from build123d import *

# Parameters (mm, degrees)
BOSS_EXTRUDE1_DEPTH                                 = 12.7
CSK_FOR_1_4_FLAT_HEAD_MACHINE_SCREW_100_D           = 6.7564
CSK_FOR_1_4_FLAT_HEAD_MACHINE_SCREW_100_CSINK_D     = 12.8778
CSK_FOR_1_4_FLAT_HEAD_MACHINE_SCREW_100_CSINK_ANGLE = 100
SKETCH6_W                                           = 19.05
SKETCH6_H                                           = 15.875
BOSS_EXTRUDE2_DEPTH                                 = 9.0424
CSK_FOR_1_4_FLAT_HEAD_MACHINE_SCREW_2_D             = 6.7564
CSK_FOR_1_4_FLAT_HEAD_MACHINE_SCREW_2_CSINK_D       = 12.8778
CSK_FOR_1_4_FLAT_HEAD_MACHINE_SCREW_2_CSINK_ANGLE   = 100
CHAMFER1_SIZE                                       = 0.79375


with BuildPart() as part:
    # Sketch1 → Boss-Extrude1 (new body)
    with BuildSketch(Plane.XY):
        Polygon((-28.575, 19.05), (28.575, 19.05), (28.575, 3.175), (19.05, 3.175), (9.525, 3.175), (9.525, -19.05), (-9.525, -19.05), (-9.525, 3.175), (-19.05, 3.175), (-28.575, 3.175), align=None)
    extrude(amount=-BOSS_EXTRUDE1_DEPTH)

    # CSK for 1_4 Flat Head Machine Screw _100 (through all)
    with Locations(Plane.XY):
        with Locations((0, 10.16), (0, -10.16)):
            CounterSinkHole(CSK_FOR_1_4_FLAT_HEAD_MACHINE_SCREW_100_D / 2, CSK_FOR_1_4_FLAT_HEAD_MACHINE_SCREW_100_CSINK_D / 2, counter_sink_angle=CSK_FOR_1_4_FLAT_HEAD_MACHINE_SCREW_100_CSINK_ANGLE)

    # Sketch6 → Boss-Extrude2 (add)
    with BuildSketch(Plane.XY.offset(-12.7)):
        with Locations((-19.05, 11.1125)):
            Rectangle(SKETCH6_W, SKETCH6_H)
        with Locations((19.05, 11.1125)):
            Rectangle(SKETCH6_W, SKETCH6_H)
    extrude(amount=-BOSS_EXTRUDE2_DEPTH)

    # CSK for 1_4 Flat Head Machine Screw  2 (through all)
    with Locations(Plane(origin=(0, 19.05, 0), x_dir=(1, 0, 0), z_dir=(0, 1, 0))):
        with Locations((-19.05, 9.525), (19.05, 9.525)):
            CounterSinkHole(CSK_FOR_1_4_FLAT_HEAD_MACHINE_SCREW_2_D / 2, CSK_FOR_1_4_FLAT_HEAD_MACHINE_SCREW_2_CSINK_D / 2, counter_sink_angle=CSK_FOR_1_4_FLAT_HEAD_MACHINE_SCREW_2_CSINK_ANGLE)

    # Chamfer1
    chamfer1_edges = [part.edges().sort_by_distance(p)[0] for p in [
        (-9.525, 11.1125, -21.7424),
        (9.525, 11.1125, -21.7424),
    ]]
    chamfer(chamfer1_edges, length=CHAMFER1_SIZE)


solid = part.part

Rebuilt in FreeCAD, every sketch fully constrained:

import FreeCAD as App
import Part
import Sketcher

V = App.Vector
Q = App.Units.Quantity


def edges_at(feature, points):
    """Names of the edges that pass closest to the given points."""
    edges = feature.Shape.Edges
    near = lambda p: min(range(len(edges)), key=lambda i: edges[i].distToShape(Part.Vertex(*p))[0])
    return sorted({f"Edge{near(p) + 1}" for p in points})

doc = App.newDocument("Part")
params = doc.addObject("Spreadsheet::Sheet", "Params")
for row, (alias, value) in enumerate([
    ("sketch1_width", "2.25 in"),
    ("sketch1_height", "0.625 in"),
    ("pad1_length", "0.5 in"),
    ("sketch2_diameter", "0.266 in"),
    ("hole_diameter", "0.266 in"),
    ("hole_csink_diameter", "0.507 in"),
    ("sketch3_width", "0.75 in"),
    ("sketch3_height", "0.625 in"),
    ("pad2_length", "0.356 in"),
    ("sketch4_diameter", "0.266 in"),
    ("hole2_diameter", "0.266 in"),
    ("hole2_csink_diameter", "0.507 in"),
    ("chamfer_size", "0.03125 in"),
], start=1):
    params.set(f"A{row}", alias)
    params.set(f"B{row}", "=" + value)
    params.setAlias(f"B{row}", alias)

body = doc.addObject("PartDesign::Body", "Body")

sketch1 = body.newObject("Sketcher::SketchObject", "Sketch")
sketch1.AttachmentSupport = (doc.getObject("XY_Plane"), [""])
sketch1.MapMode = "FlatFace"
sketch1.addGeometry([
    Part.LineSegment(V(29, 19, 0), V(-29, 19, 0)),
    Part.LineSegment(V(-29, 19, 0), V(-29, 3, 0)),
    Part.LineSegment(V(-29, 3, 0), V(-10, 3, 0)),
    Part.LineSegment(V(-10, 3, 0), V(-10, -19, 0)),
    Part.LineSegment(V(-10, -19, 0), V(10, -19, 0)),
    Part.LineSegment(V(10, -19, 0), V(10, 3, 0)),
    Part.LineSegment(V(10, 3, 0), V(29, 3, 0)),
    Part.LineSegment(V(29, 3, 0), V(29, 19, 0)),
], False)
sketch1.addConstraint([
    Sketcher.Constraint("Coincident", 0, 2, 1, 1),
    Sketcher.Constraint("Coincident", 1, 2, 2, 1),
    Sketcher.Constraint("Coincident", 2, 2, 3, 1),
    Sketcher.Constraint("Coincident", 3, 2, 4, 1),
    Sketcher.Constraint("Coincident", 4, 2, 5, 1),
    Sketcher.Constraint("Coincident", 5, 2, 6, 1),
    Sketcher.Constraint("Coincident", 6, 2, 7, 1),
    Sketcher.Constraint("Coincident", 7, 2, 0, 1),
    Sketcher.Constraint("Horizontal", 0),
    Sketcher.Constraint("Vertical", 1),
    Sketcher.Constraint("Horizontal", 2),
    Sketcher.Constraint("Vertical", 3),
    Sketcher.Constraint("Horizontal", 4),
    Sketcher.Constraint("Vertical", 5),
    Sketcher.Constraint("Horizontal", 6),
    Sketcher.Constraint("Vertical", 7),
    Sketcher.Constraint("Symmetric", 2, 2, 5, 2, -2),
    Sketcher.Constraint("Equal", 2, 4),
    Sketcher.Constraint("Equal", 4, 6),
    Sketcher.Constraint("DistanceX", 0, 2, 0, 1, Q("2.25 in")),
    Sketcher.Constraint("DistanceY", 3, 2, 0, 2, Q("1.5 in")),
    Sketcher.Constraint("DistanceY", 1, 2, 1, 1, Q("0.625 in")),
    Sketcher.Constraint("DistanceY", -1, 1, 0, 2, Q("0.75 in")),
])
sketch1.setExpression("Constraints[19]", "Params.sketch1_width")
sketch1.setExpression("Constraints[21]", "Params.sketch1_height")
pad1 = body.newObject("PartDesign::Pad", "Pad")
pad1.Profile = sketch1
pad1.setExpression("Length", "Params.pad1_length")
pad1.Reversed = True

sketch2 = body.newObject("Sketcher::SketchObject", "Sketch001")
sketch2.AttachmentSupport = (doc.getObject("XY_Plane"), [""])
sketch2.MapMode = "FlatFace"
sketch2.addGeometry([
    Part.Circle(V(0, 10.2, 0), V(0, 0, 1), 3.4),
    Part.Circle(V(0, -10.2, 0), V(0, 0, 1), 3.4),
], False)
sketch2.addConstraint([
    Sketcher.Constraint("Equal", 0, 1),
    Sketcher.Constraint("Symmetric", 0, 3, 1, 3, -1, 1),
    Sketcher.Constraint("PointOnObject", 0, 3, -2),
    Sketcher.Constraint("Diameter", 0, Q("0.266 in")),
    Sketcher.Constraint("DistanceY", -1, 1, 0, 3, Q("0.4 in")),
])
sketch2.setExpression("Constraints[3]", "Params.sketch2_diameter")
doc.recompute()
hole = body.newObject("PartDesign::Hole", "Hole")
hole.Profile = sketch2
hole.ThreadType = "None"
hole.setExpression("Diameter", "Params.hole_diameter")
hole.DepthType = "ThroughAll"
hole.HoleCutType = "Countersink"
hole.setExpression("HoleCutDiameter", "Params.hole_csink_diameter")
hole.HoleCutCountersinkAngle = 100

sketch3 = body.newObject("Sketcher::SketchObject", "Sketch002")
sketch3.AttachmentSupport = (doc.getObject("XY_Plane"), [""])
sketch3.MapMode = "FlatFace"
sketch3.AttachmentOffset = App.Placement(V(0, 0, -0.5 * 25.4), App.Rotation())
sketch3.addGeometry([
    Part.LineSegment(V(-29, 19, 0), V(-29, 3, 0)),
    Part.LineSegment(V(-29, 3, 0), V(-10, 3, 0)),
    Part.LineSegment(V(-10, 3, 0), V(-10, 19, 0)),
    Part.LineSegment(V(-10, 19, 0), V(-29, 19, 0)),
    Part.LineSegment(V(10, 19, 0), V(10, 3, 0)),
    Part.LineSegment(V(10, 3, 0), V(29, 3, 0)),
    Part.LineSegment(V(29, 3, 0), V(29, 19, 0)),
    Part.LineSegment(V(29, 19, 0), V(10, 19, 0)),
], False)
sketch3.addConstraint([
    Sketcher.Constraint("Coincident", 0, 2, 1, 1),
    Sketcher.Constraint("Coincident", 1, 2, 2, 1),
    Sketcher.Constraint("Coincident", 2, 2, 3, 1),
    Sketcher.Constraint("Coincident", 3, 2, 0, 1),
    Sketcher.Constraint("Coincident", 4, 2, 5, 1),
    Sketcher.Constraint("Coincident", 5, 2, 6, 1),
    Sketcher.Constraint("Coincident", 6, 2, 7, 1),
    Sketcher.Constraint("Coincident", 7, 2, 4, 1),
    Sketcher.Constraint("Vertical", 0),
    Sketcher.Constraint("Horizontal", 1),
    Sketcher.Constraint("Vertical", 2),
    Sketcher.Constraint("Horizontal", 3),
    Sketcher.Constraint("Vertical", 4),
    Sketcher.Constraint("Horizontal", 5),
    Sketcher.Constraint("Vertical", 6),
    Sketcher.Constraint("Horizontal", 7),
    Sketcher.Constraint("Symmetric", 1, 2, 4, 2, -2),
    Sketcher.Constraint("Symmetric", 3, 2, 6, 2, -2),
    Sketcher.Constraint("DistanceX", 1, 1, 1, 2, Q("0.75 in")),
    Sketcher.Constraint("DistanceX", 0, 2, 4, 2, Q("1.5 in")),
    Sketcher.Constraint("DistanceY", 0, 2, 0, 1, Q("0.625 in")),
    Sketcher.Constraint("DistanceY", -1, 1, 2, 2, Q("0.75 in")),
])
sketch3.setExpression("Constraints[18]", "Params.sketch3_width")
sketch3.setExpression("Constraints[20]", "Params.sketch3_height")
pad2 = body.newObject("PartDesign::Pad", "Pad001")
pad2.Profile = sketch3
pad2.setExpression("Length", "Params.pad2_length")
pad2.Reversed = True

sketch4 = body.newObject("Sketcher::SketchObject", "Sketch003")
sketch4.AttachmentSupport = (doc.getObject("XZ_Plane"), [""])
sketch4.MapMode = "FlatFace"
sketch4.AttachmentOffset = App.Placement(V(0, 0, -0.75 * 25.4), App.Rotation())
sketch4.addGeometry([
    Part.Circle(V(-19.1, -9.5, 0), V(0, 0, 1), 3.4),
    Part.Circle(V(19.1, -9.5, 0), V(0, 0, 1), 3.4),
], False)
sketch4.addConstraint([
    Sketcher.Constraint("Equal", 0, 1),
    Sketcher.Constraint("Symmetric", 0, 3, 1, 3, -2),
    Sketcher.Constraint("Diameter", 0, Q("0.266 in")),
    Sketcher.Constraint("DistanceX", 0, 3, 1, 3, Q("1.5 in")),
    Sketcher.Constraint("DistanceY", 0, 3, -1, 1, Q("0.375 in")),
])
sketch4.setExpression("Constraints[2]", "Params.sketch4_diameter")
doc.recompute()
hole2 = body.newObject("PartDesign::Hole", "Hole001")
hole2.Profile = sketch4
hole2.ThreadType = "None"
hole2.setExpression("Diameter", "Params.hole2_diameter")
hole2.DepthType = "ThroughAll"
hole2.HoleCutType = "Countersink"
hole2.setExpression("HoleCutDiameter", "Params.hole2_csink_diameter")
hole2.HoleCutCountersinkAngle = 100
hole2.Reversed = True
doc.recompute()

chamfer = body.newObject("PartDesign::Chamfer", "Chamfer")
chamfer.Base = (hole2, edges_at(hole2, [(-9.525, 11.113, -21.742), (9.525, 11.113, -21.742)]))
chamfer.setExpression("Size", "Params.chamfer_size")

doc.recompute()
